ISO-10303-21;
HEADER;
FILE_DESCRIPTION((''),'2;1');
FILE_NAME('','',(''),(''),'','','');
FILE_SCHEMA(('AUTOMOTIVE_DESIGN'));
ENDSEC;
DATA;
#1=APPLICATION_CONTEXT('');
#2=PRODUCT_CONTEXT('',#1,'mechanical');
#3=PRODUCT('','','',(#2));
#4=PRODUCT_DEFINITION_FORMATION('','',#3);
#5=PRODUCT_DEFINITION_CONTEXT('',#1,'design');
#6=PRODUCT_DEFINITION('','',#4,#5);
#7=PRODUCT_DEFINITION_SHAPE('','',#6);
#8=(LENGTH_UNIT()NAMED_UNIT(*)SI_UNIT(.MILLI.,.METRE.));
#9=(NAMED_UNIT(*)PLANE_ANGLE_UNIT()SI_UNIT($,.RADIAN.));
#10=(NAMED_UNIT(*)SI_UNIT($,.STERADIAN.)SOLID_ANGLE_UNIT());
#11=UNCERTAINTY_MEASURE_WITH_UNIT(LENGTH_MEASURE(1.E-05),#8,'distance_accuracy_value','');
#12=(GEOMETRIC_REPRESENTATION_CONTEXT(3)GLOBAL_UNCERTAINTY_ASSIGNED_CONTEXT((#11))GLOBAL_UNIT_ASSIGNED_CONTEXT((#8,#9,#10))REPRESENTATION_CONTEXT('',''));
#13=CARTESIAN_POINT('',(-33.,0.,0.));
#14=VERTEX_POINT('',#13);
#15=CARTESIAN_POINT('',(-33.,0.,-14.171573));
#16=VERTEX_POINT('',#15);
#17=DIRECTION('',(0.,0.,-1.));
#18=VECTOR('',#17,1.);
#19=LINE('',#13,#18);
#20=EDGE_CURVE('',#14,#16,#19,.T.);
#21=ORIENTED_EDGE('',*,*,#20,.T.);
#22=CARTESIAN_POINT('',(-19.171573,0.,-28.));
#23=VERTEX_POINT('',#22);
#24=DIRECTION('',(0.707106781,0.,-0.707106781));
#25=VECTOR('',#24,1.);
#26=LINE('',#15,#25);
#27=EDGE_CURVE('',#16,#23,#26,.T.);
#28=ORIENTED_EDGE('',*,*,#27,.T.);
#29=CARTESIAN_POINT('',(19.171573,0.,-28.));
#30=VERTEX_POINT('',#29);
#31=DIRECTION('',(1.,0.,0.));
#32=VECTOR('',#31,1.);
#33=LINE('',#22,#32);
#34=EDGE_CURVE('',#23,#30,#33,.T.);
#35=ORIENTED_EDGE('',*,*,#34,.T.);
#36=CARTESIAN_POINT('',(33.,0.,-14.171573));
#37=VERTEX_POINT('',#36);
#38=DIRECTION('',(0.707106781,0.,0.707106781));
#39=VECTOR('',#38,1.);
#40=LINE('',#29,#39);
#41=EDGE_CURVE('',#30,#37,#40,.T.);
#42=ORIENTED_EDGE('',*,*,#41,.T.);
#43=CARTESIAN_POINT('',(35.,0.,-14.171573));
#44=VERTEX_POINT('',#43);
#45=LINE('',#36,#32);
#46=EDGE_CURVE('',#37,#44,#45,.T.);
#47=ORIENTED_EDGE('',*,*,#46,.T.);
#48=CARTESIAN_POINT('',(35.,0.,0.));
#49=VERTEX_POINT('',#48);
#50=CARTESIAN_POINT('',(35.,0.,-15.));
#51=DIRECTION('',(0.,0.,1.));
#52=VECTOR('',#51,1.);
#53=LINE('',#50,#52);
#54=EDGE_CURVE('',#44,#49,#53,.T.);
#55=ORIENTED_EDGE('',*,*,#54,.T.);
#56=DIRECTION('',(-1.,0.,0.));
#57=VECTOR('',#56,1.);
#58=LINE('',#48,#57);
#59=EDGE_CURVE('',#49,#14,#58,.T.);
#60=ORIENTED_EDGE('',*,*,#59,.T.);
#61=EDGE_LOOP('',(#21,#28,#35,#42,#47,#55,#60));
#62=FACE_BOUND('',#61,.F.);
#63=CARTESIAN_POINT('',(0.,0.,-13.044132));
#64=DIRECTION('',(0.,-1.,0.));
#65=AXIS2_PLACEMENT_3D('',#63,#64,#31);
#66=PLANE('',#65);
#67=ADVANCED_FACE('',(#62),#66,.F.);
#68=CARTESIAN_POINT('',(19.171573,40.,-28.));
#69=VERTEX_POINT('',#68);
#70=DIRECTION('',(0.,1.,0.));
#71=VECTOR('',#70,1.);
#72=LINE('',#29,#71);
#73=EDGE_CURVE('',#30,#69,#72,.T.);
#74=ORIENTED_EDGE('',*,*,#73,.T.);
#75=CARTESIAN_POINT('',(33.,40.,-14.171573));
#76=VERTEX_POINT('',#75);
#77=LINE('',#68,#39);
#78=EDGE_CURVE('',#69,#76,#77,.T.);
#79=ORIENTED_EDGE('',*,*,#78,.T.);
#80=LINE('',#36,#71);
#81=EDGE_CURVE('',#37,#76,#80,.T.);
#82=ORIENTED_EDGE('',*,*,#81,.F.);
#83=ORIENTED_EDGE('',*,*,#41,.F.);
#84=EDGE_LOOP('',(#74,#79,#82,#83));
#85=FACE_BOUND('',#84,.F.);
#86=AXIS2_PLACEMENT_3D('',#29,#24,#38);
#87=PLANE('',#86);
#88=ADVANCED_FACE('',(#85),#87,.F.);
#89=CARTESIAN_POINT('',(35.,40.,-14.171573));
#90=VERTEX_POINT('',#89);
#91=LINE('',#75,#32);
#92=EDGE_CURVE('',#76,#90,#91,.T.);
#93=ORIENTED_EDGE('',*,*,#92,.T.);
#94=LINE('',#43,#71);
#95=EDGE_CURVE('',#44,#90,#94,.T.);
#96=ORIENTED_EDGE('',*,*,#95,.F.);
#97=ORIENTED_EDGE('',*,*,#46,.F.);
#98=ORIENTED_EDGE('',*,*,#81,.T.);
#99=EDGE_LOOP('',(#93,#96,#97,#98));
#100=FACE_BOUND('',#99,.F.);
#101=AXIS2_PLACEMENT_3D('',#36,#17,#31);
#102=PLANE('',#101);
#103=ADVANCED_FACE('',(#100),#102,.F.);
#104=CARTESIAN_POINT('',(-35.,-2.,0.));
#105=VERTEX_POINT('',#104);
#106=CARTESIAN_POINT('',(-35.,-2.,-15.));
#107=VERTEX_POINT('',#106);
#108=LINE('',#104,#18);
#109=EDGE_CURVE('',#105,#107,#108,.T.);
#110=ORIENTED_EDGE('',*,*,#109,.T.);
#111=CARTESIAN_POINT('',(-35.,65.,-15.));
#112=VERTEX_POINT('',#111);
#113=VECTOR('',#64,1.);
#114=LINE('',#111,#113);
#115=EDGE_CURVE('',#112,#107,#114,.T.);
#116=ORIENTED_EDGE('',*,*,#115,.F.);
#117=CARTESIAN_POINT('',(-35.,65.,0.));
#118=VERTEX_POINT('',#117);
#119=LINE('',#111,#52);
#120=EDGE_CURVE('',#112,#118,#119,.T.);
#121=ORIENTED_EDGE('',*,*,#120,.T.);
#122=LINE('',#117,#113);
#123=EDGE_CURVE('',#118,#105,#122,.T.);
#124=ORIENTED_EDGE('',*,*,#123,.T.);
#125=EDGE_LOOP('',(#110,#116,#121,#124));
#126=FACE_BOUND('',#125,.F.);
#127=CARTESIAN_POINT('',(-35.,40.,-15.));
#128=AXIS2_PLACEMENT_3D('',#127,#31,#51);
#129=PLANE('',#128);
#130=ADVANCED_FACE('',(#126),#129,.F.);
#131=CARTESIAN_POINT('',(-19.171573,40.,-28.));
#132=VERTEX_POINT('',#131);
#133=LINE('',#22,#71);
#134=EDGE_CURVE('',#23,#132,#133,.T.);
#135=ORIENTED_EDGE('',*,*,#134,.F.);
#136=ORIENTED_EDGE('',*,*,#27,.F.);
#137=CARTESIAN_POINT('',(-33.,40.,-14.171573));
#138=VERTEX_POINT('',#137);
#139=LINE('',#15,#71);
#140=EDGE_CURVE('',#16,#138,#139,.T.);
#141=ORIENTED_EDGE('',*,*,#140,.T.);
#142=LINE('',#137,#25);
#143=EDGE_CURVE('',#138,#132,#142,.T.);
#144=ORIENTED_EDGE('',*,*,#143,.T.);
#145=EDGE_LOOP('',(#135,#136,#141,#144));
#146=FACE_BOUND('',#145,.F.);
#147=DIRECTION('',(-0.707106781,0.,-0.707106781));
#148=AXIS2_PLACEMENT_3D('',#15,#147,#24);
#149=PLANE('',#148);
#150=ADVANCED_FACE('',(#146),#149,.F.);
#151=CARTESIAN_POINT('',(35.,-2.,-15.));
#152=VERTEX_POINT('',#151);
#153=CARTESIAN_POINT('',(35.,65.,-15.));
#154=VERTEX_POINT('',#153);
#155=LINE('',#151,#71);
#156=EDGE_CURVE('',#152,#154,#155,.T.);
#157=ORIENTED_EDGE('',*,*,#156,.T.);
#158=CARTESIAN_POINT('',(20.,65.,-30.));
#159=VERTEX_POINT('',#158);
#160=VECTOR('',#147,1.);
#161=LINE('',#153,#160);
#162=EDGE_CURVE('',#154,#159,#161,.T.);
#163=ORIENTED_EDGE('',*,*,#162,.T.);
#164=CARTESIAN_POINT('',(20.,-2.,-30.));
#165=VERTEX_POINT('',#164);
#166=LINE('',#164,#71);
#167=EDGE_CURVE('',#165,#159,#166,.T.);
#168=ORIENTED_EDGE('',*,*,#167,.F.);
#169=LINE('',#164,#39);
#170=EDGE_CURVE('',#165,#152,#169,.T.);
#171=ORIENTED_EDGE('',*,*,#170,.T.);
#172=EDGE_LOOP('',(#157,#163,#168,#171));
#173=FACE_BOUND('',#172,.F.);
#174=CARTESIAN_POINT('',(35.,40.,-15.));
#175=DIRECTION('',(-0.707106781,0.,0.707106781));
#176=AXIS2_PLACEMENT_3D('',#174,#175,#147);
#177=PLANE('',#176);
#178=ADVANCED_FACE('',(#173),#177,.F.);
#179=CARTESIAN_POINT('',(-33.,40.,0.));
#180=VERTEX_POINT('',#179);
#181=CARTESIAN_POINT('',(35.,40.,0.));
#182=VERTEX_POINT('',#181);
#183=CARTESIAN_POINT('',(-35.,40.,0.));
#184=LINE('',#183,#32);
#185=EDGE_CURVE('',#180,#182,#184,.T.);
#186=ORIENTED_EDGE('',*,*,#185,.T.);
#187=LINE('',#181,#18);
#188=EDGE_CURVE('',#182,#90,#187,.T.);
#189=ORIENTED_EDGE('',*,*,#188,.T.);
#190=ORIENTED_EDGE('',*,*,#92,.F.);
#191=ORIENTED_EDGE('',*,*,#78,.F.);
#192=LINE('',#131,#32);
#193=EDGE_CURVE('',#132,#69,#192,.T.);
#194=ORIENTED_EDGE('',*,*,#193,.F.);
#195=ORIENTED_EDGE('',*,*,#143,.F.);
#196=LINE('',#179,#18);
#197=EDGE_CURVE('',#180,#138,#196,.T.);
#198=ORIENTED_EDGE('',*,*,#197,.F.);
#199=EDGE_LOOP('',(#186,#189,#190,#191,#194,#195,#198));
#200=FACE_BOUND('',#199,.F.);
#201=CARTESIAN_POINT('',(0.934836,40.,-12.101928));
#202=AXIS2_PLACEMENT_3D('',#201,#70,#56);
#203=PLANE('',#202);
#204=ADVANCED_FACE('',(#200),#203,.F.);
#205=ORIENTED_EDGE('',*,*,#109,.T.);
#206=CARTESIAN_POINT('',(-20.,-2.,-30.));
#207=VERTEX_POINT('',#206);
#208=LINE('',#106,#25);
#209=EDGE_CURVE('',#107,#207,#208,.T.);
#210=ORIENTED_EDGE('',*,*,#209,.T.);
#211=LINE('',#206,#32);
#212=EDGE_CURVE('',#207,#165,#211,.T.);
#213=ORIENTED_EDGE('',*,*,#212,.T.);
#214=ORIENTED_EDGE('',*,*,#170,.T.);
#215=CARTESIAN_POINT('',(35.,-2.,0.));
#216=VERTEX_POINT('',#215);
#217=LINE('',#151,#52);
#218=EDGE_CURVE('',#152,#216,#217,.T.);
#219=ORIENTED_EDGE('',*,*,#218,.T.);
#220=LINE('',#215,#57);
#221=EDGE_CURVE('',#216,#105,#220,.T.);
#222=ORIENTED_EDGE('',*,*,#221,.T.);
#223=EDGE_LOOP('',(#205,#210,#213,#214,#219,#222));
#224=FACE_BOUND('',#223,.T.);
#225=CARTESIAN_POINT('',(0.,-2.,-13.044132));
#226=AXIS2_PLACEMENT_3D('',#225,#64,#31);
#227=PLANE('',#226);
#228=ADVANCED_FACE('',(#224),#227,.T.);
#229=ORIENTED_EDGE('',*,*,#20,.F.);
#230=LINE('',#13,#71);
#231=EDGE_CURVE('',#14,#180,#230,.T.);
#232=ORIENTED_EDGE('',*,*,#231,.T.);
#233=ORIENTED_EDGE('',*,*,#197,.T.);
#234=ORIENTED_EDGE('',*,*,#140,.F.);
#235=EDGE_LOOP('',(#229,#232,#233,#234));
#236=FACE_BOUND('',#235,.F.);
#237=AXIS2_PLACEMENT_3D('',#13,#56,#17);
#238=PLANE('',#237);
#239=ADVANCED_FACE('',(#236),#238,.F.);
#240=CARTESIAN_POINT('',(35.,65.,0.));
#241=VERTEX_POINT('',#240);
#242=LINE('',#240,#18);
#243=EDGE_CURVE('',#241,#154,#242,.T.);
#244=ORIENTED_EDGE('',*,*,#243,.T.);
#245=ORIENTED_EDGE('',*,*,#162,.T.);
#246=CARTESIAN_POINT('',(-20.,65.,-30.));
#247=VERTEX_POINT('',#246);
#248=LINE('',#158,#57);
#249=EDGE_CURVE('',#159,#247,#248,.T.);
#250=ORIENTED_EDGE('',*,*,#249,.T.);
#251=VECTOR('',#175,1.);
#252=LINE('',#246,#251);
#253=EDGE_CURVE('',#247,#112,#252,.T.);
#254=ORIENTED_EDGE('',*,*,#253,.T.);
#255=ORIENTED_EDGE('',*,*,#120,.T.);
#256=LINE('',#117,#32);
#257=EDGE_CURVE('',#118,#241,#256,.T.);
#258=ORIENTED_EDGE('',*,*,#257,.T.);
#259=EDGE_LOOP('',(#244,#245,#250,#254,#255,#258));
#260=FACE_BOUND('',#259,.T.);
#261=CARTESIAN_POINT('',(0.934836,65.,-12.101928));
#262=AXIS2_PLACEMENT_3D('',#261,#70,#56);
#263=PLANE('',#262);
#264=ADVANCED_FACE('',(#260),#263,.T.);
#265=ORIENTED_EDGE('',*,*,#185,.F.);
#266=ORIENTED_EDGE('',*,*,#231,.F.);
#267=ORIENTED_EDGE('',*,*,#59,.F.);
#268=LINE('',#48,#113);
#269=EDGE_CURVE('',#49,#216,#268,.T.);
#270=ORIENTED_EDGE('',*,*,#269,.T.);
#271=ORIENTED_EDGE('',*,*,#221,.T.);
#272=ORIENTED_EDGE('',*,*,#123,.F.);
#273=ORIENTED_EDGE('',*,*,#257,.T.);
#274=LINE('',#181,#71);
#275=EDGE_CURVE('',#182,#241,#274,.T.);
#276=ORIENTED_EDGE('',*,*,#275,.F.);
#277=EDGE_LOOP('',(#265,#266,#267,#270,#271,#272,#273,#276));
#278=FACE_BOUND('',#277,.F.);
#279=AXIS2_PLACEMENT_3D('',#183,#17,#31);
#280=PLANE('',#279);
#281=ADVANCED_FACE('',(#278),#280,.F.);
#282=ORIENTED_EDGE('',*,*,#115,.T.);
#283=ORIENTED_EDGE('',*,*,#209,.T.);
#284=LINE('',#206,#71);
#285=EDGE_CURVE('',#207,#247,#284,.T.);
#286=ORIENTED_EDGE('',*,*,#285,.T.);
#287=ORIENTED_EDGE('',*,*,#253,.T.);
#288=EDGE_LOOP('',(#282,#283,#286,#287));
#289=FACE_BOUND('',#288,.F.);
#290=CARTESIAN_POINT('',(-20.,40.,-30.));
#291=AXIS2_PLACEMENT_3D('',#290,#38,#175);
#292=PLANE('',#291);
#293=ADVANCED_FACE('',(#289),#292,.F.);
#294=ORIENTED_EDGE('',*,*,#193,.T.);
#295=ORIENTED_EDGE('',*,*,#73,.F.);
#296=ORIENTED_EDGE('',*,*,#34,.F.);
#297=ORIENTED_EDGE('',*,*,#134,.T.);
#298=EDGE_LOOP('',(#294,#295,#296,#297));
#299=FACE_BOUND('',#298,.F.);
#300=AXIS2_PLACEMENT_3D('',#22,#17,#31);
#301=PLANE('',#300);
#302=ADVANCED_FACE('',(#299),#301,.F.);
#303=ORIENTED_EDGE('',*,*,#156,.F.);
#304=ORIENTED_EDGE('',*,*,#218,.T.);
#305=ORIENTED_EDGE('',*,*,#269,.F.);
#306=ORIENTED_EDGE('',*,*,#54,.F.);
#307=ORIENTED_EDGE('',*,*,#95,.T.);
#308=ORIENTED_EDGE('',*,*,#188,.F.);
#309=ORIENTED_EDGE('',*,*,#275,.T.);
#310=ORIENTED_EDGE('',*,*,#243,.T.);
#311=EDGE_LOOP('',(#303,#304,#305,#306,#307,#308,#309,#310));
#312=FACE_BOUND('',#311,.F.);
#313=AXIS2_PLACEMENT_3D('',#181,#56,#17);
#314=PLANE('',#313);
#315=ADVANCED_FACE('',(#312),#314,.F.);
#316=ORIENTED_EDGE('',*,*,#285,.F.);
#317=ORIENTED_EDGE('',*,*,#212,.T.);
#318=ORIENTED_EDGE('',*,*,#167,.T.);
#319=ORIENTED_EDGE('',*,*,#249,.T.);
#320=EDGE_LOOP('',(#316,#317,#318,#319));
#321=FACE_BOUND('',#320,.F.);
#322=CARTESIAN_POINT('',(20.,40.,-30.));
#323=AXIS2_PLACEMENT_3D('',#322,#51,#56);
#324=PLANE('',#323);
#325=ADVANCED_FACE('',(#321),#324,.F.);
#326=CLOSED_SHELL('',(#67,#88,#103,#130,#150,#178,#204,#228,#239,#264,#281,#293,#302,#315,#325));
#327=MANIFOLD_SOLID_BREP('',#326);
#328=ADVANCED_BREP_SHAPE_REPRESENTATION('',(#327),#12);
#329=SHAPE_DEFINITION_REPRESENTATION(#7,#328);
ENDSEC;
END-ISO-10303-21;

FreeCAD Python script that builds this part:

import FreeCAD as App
import Part
import Sketcher


def add_polygon(sketch, points):
    """Adds a closed chain of lines whose ends are joined by coincident constraints."""
    first, n = sketch.GeometryCount, len(points)
    for a, b in zip(points, points[1:] + points[:1]):
        sketch.addGeometry(Part.LineSegment(App.Vector(*a, 0), App.Vector(*b, 0)), False)
    for i in range(n):
        sketch.addConstraint(Sketcher.Constraint("Coincident", first + i, 2, first + (i + 1) % n, 1))

doc = App.newDocument("Part")
params = doc.addObject("Spreadsheet::Sheet", "Params")
for row, (alias, value) in enumerate([
    ("sketch1_width", "70 mm"),
    ("sketch1_width2", "40 mm"),
    ("sketch1_height", "15 mm"),
    ("pad1_length", "2 mm"),
    ("sketch2_width", "2 mm"),
    ("sketch2_width2", "40 mm"),
    ("sketch2_height", "15 mm"),
    ("pad2_length", "40 mm"),
    ("sketch3_width", "40 mm"),
    ("sketch3_width2", "70 mm"),
    ("sketch3_height", "15 mm"),
    ("pad3_length", "25 mm"),
], start=1):
    params.set(f"A{row}", alias)
    params.set(f"B{row}", "=" + value)
    params.setAlias(f"B{row}", alias)

body = doc.addObject("PartDesign::Body", "Body")

# Sketch on XZ plane
sketch1 = doc.addObject("Sketcher::SketchObject", "Sketch")
body.addObject(sketch1)
sketch1.AttachmentSupport = (doc.XZ_Plane, [""])
sketch1.MapMode = "FlatFace"
add_polygon(sketch1, [(35, -15), (35, 0), (-35, 0), (-35, -15), (-20, -30), (20, -30)])  # lines 0-5
sketch1.addConstraint(Sketcher.Constraint("Vertical", 0))
sketch1.addConstraint(Sketcher.Constraint("Horizontal", 1))
sketch1.addConstraint(Sketcher.Constraint("Vertical", 2))
sketch1.addConstraint(Sketcher.Constraint("Horizontal", 4))
sketch1.addConstraint(Sketcher.Constraint("Symmetric", 0, 2, 1, 2, -1, 1))
sketch1.addConstraint(Sketcher.Constraint("Perpendicular", 3, 5))
sketch1.addConstraint(Sketcher.Constraint("Horizontal", 2, 2, 5, 2))
sketch1.addConstraint(Sketcher.Constraint("Equal", 3, 5))
sketch1.addConstraint(Sketcher.Constraint("DistanceX", 1, 2, 1, 1, 70.0))
sketch1.addConstraint(Sketcher.Constraint("DistanceX", 4, 1, 4, 2, 40.0))
sketch1.addConstraint(Sketcher.Constraint("DistanceY", 0, 1, 0, 2, 15.0))
sketch1.setExpression("Constraints[14]", "Params.sketch1_width")
sketch1.setExpression("Constraints[15]", "Params.sketch1_width2")
sketch1.setExpression("Constraints[16]", "Params.sketch1_height")
pad1 = doc.addObject("PartDesign::Pad", "Pad")
body.addObject(pad1)
pad1.Profile = sketch1
pad1.setExpression("Length", "Params.pad1_length")

# Sketch on XZ plane
sketch2 = doc.addObject("Sketcher::SketchObject", "Sketch001")
body.addObject(sketch2)
sketch2.AttachmentSupport = (doc.XZ_Plane, [""])
sketch2.MapMode = "FlatFace"
add_polygon(sketch2, [(-33, -14.171573), (-19.171573, -28), (19.171573, -28), (33, -14.171573), (35, -14.171573), (35, -15), (20, -30), (-20, -30), (-35, -15), (-35, 0), (-33, 0)])  # lines 0-10
sketch2.addConstraint(Sketcher.Constraint("Horizontal", 1))
sketch2.addConstraint(Sketcher.Constraint("Horizontal", 3))
sketch2.addConstraint(Sketcher.Constraint("Vertical", 4))
sketch2.addConstraint(Sketcher.Constraint("Horizontal", 6))
sketch2.addConstraint(Sketcher.Constraint("Vertical", 8))
sketch2.addConstraint(Sketcher.Constraint("Horizontal", 9))
sketch2.addConstraint(Sketcher.Constraint("Vertical", 10))
sketch2.addConstraint(Sketcher.Constraint("Symmetric", 4, 2, 7, 2, -2))
sketch2.addConstraint(Sketcher.Constraint("Symmetric", 2, 2, 10, 2, -2))
sketch2.addConstraint(Sketcher.Constraint("PointOnObject", 8, 2, -1))
sketch2.addConstraint(Sketcher.Constraint("Perpendicular", 0, 2))
sketch2.addConstraint(Sketcher.Constraint("Parallel", 2, 5))
sketch2.addConstraint(Sketcher.Constraint("Perpendicular", 5, 7))
sketch2.addConstraint(Sketcher.Constraint("Equal", 0, 2))
sketch2.addConstraint(Sketcher.Constraint("DistanceX", 3, 1, 3, 2, 2.0))
sketch2.addConstraint(Sketcher.Constraint("DistanceX", 6, 2, 6, 1, 40.0))
sketch2.addConstraint(Sketcher.Constraint("DistanceY", 8, 1, 8, 2, 15.0))
sketch2.addConstraint(Sketcher.Constraint("DistanceY", 0, 2, -1, 1, 28.0))
sketch2.addConstraint(Sketcher.Constraint("DistanceX", -1, 1, 2, 2, 33.0))
sketch2.addConstraint(Sketcher.Constraint("Distance", 0, 19.556349))
sketch2.setExpression("Constraints[25]", "Params.sketch2_width")
sketch2.setExpression("Constraints[26]", "Params.sketch2_width2")
sketch2.setExpression("Constraints[27]", "Params.sketch2_height")
pad2 = doc.addObject("PartDesign::Pad", "Pad001")
body.addObject(pad2)
pad2.Profile = sketch2
pad2.setExpression("Length", "Params.pad2_length")
pad2.Reversed = True

# Sketch on XZ plane
sketch3 = doc.addObject("Sketcher::SketchObject", "Sketch002")
body.addObject(sketch3)
sketch3.AttachmentSupport = (doc.XZ_Plane, [""])
sketch3.MapMode = "FlatFace"
sketch3.AttachmentOffset = App.Placement(App.Vector(0, 0, -40), App.Rotation())
add_polygon(sketch3, [(35, 0), (35, -15), (20, -30), (-20, -30), (-35, -15), (-35, 0)])  # lines 0-5
sketch3.addConstraint(Sketcher.Constraint("Vertical", 0))
sketch3.addConstraint(Sketcher.Constraint("Horizontal", 2))
sketch3.addConstraint(Sketcher.Constraint("Vertical", 4))
sketch3.addConstraint(Sketcher.Constraint("Horizontal", 5))
sketch3.addConstraint(Sketcher.Constraint("Symmetric", 4, 2, 5, 2, -1, 1))
sketch3.addConstraint(Sketcher.Constraint("Perpendicular", 1, 3))
sketch3.addConstraint(Sketcher.Constraint("Horizontal", 0, 2, 3, 2))
sketch3.addConstraint(Sketcher.Constraint("Equal", 1, 3))
sketch3.addConstraint(Sketcher.Constraint("DistanceX", 2, 2, 2, 1, 40.0))
sketch3.addConstraint(Sketcher.Constraint("DistanceX", 5, 1, 5, 2, 70.0))
sketch3.addConstraint(Sketcher.Constraint("DistanceY", 0, 2, 0, 1, 15.0))
sketch3.setExpression("Constraints[14]", "Params.sketch3_width")
sketch3.setExpression("Constraints[15]", "Params.sketch3_width2")
sketch3.setExpression("Constraints[16]", "Params.sketch3_height")
pad3 = doc.addObject("PartDesign::Pad", "Pad002")
body.addObject(pad3)
pad3.Profile = sketch3
pad3.setExpression("Length", "Params.pad3_length")
pad3.Reversed = True

doc.recompute()
